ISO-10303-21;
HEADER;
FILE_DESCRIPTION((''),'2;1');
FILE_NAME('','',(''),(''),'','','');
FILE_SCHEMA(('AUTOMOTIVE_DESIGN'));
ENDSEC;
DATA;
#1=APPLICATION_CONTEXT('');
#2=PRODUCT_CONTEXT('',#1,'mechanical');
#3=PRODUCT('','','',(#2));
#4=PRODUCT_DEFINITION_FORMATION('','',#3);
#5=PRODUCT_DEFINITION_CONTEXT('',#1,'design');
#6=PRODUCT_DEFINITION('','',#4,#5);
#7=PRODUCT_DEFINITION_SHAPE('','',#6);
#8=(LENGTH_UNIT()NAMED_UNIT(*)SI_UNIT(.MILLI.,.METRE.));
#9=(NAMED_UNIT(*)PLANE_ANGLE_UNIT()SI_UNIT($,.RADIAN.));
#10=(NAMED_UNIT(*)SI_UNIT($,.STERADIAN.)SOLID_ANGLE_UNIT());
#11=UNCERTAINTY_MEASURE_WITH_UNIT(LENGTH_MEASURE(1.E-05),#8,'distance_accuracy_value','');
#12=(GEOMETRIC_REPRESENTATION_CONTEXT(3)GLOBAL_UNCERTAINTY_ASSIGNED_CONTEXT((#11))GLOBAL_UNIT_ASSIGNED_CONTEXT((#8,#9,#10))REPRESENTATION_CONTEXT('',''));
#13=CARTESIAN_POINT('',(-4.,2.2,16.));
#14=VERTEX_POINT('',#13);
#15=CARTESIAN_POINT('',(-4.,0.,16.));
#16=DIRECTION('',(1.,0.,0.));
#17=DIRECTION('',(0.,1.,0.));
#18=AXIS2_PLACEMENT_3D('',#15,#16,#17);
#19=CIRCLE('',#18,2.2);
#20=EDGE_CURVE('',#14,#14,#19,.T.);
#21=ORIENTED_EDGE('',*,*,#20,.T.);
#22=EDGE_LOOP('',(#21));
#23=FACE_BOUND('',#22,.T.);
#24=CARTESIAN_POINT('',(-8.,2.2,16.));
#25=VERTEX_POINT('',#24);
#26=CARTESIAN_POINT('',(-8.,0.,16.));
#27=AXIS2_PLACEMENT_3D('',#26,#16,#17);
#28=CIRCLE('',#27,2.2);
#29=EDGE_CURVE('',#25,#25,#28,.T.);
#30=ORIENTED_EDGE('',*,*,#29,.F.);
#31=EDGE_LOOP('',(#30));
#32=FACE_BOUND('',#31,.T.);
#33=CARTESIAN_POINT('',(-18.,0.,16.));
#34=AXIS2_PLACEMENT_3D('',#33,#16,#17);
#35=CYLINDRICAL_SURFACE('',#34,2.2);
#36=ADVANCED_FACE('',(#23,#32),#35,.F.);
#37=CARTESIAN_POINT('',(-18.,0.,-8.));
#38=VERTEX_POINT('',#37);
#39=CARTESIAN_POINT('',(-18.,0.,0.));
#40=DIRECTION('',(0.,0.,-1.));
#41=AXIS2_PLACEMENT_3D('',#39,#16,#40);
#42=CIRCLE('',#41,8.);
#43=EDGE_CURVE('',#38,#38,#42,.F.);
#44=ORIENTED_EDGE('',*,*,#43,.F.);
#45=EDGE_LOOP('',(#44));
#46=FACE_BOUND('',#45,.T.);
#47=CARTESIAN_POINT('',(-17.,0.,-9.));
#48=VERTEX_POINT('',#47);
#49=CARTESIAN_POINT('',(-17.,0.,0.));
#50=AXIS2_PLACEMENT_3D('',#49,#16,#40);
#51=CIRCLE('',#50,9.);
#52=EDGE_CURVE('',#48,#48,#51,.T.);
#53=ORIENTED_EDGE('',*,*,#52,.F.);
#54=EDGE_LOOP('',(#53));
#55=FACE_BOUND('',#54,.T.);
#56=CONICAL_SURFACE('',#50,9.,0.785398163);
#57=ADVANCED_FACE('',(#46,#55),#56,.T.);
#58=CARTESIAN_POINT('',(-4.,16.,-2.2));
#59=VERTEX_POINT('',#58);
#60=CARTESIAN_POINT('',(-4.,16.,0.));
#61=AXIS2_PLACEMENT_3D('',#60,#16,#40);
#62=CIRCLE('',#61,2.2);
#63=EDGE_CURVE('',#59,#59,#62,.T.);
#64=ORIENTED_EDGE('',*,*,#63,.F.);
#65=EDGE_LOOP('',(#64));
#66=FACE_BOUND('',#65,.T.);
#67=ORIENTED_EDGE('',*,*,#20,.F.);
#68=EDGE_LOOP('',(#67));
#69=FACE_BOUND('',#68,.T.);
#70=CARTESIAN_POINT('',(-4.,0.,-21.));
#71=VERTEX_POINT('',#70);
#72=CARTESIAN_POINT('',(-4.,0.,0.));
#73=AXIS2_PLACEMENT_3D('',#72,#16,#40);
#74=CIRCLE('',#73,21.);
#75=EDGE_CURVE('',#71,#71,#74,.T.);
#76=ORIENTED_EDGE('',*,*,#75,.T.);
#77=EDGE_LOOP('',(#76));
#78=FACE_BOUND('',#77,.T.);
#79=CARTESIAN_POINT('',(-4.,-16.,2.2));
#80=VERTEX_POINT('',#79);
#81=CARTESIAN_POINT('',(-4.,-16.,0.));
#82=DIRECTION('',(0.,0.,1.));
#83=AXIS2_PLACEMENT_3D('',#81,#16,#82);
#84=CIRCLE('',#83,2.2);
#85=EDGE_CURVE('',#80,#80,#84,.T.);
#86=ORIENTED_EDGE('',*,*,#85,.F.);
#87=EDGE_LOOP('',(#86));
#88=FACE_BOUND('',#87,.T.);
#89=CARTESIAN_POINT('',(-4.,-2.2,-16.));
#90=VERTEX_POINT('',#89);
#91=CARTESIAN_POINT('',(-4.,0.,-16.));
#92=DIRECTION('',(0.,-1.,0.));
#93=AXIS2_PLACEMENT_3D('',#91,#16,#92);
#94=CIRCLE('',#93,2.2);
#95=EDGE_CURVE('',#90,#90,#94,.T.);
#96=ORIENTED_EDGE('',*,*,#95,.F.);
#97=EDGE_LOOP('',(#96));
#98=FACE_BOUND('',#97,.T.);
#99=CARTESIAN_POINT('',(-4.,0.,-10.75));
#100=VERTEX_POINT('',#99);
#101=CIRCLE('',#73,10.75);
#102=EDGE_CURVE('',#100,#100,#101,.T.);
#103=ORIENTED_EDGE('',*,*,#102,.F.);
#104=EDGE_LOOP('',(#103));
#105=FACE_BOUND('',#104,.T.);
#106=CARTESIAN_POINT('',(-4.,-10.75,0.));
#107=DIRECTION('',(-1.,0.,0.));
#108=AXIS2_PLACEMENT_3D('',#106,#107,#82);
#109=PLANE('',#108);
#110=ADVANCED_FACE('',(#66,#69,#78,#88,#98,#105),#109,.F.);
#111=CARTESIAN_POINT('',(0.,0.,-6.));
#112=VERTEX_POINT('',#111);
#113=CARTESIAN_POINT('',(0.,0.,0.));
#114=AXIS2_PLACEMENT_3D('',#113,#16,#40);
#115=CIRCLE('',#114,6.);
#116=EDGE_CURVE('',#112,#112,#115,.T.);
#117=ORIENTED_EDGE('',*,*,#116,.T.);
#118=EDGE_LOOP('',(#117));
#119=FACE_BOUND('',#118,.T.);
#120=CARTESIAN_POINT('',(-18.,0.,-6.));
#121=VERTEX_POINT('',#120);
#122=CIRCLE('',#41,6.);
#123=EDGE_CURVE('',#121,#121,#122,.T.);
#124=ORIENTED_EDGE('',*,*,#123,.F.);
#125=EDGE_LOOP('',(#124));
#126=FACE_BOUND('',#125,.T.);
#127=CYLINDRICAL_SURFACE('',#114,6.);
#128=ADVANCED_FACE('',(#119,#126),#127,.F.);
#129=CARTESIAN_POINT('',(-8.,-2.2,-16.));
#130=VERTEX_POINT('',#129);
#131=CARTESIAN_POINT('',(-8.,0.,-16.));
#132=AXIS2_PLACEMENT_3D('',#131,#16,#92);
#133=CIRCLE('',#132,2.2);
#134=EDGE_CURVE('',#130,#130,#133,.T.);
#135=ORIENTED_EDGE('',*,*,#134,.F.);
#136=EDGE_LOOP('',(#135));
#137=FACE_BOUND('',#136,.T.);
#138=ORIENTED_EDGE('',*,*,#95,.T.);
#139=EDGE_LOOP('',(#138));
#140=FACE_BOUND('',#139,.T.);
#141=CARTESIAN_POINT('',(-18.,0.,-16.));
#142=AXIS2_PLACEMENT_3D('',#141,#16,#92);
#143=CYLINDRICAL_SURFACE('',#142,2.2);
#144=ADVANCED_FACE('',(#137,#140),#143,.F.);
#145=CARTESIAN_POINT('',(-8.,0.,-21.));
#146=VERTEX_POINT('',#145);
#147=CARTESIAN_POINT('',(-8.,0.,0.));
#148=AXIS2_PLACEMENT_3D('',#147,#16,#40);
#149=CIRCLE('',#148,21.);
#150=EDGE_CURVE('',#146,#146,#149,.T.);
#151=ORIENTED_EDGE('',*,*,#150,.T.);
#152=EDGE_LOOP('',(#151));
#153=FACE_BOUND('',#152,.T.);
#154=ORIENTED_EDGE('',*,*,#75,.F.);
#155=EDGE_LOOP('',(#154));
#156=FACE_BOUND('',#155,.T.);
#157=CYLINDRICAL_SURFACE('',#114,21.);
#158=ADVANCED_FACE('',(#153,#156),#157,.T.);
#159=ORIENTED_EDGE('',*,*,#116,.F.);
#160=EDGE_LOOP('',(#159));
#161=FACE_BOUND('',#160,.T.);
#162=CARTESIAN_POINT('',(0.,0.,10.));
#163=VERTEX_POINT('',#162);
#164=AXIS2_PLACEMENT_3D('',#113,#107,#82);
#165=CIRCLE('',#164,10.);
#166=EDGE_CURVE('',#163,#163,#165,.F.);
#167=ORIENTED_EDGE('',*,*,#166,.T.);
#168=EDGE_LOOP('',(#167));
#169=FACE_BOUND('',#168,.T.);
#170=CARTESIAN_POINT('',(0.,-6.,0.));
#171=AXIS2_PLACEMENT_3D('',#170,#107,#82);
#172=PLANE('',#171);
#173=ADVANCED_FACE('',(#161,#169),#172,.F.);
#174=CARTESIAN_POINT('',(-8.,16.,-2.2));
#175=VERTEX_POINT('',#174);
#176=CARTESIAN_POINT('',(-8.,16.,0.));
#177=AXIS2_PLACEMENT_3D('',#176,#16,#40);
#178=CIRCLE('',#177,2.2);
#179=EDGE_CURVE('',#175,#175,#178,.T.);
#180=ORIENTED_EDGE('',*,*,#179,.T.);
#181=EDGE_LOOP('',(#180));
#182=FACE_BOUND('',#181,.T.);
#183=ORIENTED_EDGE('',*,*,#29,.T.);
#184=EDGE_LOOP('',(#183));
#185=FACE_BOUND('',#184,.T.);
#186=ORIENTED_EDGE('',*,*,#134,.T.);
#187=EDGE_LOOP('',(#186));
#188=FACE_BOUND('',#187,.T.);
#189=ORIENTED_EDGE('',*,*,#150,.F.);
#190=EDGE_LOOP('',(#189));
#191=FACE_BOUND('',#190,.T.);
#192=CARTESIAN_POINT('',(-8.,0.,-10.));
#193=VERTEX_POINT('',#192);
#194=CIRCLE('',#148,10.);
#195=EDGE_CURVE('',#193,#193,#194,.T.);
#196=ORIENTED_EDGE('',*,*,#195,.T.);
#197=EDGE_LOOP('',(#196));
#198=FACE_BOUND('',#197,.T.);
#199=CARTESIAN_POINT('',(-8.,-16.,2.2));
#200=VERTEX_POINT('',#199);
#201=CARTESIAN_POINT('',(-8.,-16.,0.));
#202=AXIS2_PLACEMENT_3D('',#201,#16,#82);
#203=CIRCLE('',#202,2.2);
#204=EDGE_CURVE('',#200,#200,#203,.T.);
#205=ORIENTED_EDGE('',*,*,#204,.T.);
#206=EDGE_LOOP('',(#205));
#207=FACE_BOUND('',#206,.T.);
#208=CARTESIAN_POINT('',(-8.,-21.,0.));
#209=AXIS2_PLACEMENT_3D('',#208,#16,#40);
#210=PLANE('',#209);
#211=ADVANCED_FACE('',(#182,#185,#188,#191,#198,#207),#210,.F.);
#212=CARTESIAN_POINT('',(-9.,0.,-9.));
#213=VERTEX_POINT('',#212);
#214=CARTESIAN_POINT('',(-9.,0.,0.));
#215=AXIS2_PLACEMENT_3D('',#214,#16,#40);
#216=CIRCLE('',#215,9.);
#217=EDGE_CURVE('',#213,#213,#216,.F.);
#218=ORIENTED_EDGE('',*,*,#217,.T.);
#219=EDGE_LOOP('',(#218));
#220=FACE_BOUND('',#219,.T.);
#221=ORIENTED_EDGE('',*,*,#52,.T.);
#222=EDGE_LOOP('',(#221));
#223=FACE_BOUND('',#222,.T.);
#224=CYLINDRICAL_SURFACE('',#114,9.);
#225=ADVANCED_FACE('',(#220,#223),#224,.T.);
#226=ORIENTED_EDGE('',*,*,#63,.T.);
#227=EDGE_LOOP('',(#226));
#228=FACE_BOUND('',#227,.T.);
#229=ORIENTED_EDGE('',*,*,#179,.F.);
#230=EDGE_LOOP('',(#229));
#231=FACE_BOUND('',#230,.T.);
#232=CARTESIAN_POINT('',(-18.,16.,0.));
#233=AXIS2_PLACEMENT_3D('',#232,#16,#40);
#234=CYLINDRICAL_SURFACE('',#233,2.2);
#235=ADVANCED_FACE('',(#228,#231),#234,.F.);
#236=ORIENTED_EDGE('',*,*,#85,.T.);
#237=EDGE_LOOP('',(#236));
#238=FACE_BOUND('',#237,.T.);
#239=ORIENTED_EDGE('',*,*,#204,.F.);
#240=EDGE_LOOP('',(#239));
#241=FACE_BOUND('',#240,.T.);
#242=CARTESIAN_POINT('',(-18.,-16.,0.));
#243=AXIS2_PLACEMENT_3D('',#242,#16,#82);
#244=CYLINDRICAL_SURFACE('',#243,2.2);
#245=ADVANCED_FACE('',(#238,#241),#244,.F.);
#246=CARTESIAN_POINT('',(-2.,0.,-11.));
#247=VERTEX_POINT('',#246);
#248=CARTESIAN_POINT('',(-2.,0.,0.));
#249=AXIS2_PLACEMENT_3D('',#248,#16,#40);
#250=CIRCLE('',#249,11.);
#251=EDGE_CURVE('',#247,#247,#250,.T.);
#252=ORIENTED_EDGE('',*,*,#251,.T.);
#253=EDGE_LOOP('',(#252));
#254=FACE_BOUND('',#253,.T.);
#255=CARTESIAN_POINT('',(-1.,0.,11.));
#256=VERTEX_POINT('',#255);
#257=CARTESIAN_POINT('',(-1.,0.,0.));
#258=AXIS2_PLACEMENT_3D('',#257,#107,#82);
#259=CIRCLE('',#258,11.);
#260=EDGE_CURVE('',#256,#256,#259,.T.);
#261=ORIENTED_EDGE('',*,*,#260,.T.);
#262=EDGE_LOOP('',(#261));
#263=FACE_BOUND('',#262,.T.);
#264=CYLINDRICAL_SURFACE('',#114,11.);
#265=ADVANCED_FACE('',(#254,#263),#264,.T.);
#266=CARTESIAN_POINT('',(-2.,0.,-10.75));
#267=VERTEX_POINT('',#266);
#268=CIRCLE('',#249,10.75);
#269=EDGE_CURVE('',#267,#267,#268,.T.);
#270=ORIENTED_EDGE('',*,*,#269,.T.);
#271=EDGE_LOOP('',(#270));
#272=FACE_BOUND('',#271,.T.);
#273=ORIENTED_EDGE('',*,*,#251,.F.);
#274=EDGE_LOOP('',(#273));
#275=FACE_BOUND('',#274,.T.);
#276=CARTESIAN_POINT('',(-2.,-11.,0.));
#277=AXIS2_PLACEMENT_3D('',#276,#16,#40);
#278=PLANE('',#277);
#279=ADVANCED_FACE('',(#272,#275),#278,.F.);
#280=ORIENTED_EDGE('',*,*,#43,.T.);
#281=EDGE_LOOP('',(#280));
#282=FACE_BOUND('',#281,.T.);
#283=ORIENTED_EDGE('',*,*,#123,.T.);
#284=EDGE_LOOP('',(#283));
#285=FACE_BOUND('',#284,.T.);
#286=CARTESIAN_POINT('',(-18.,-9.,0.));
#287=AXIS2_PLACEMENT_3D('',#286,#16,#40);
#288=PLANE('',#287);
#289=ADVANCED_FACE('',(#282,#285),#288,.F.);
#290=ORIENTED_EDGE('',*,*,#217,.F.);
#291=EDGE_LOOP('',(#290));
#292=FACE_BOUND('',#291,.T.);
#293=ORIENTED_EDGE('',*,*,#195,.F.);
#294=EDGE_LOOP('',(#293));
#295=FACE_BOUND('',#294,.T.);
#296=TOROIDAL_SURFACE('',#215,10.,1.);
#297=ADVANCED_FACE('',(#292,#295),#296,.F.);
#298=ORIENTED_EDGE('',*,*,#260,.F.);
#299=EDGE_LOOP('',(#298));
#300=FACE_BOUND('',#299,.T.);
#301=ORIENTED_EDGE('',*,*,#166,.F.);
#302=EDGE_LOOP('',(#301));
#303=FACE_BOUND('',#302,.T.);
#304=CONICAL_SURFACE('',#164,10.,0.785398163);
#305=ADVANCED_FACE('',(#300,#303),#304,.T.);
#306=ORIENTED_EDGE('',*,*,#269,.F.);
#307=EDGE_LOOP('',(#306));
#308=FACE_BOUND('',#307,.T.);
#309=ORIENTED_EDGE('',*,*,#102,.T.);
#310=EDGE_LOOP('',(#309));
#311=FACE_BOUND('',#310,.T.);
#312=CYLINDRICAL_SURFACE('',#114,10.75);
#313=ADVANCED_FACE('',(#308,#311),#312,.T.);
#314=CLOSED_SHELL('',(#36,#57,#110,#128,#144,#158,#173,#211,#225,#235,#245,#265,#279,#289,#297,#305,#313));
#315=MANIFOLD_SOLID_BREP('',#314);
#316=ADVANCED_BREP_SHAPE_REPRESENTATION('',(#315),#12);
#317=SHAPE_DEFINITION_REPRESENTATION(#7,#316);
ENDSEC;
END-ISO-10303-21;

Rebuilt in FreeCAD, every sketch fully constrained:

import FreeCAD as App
import Part
import Sketcher

V = App.Vector
Q = App.Units.Quantity


def edges_at(feature, points):
    """Names of the edges that pass closest to the given points."""
    edges = feature.Shape.Edges
    near = lambda p: min(range(len(edges)), key=lambda i: edges[i].distToShape(Part.Vertex(*p))[0])
    return sorted({f"Edge{near(p) + 1}" for p in points})

doc = App.newDocument("Part")
body = doc.addObject("PartDesign::Body", "Body")

sketch1 = doc.addObject("Sketcher::SketchObject", "Sketch")
body.addObject(sketch1)
sketch1.AttachmentSupport = (doc.XY_Plane, [""])
sketch1.MapMode = "FlatFace"
sketch1.addGeometry([
    Part.LineSegment(V(0, -11, 0), V(0, -6, 0)),
    Part.LineSegment(V(0, -6, 0), V(-18, -6, 0)),
    Part.LineSegment(V(-18, -6, 0), V(-18, -9, 0)),
    Part.LineSegment(V(-18, -9, 0), V(-8, -9, 0)),
    Part.LineSegment(V(-8, -9, 0), V(-8, -21, 0)),
    Part.LineSegment(V(-8, -21, 0), V(-4, -21, 0)),
    Part.LineSegment(V(-4, -21, 0), V(-4, -10.75, 0)),
    Part.LineSegment(V(-4, -10.75, 0), V(-2, -10.75, 0)),
    Part.LineSegment(V(-2, -10.75, 0), V(-2, -11, 0)),
    Part.LineSegment(V(-2, -11, 0), V(0, -11, 0)),
], False)
sketch1.addConstraint([
    Sketcher.Constraint("Coincident", 0, 2, 1, 1),
    Sketcher.Constraint("Coincident", 1, 2, 2, 1),
    Sketcher.Constraint("Coincident", 2, 2, 3, 1),
    Sketcher.Constraint("Coincident", 3, 2, 4, 1),
    Sketcher.Constraint("Coincident", 4, 2, 5, 1),
    Sketcher.Constraint("Coincident", 5, 2, 6, 1),
    Sketcher.Constraint("Coincident", 6, 2, 7, 1),
    Sketcher.Constraint("Coincident", 7, 2, 8, 1),
    Sketcher.Constraint("Coincident", 8, 2, 9, 1),
    Sketcher.Constraint("Coincident", 9, 2, 0, 1),
    Sketcher.Constraint("Vertical", 0),
    Sketcher.Constraint("Horizontal", 1),
    Sketcher.Constraint("Vertical", 2),
    Sketcher.Constraint("Horizontal", 3),
    Sketcher.Constraint("Vertical", 4),
    Sketcher.Constraint("Horizontal", 5),
    Sketcher.Constraint("Vertical", 6),
    Sketcher.Constraint("Horizontal", 7),
    Sketcher.Constraint("Vertical", 8),
    Sketcher.Constraint("Horizontal", 9),
    Sketcher.Constraint("PointOnObject", 0, 2, -2),
    Sketcher.Constraint("Equal", 7, 9),
    Sketcher.Constraint("DistanceX", 1, 2, 1, 1, Q("18 mm")),
    Sketcher.Constraint("DistanceX", 3, 1, 3, 2, Q("10 mm")),
    Sketcher.Constraint("DistanceX", 5, 1, 5, 2, Q("4 mm")),
    Sketcher.Constraint("DistanceY", 0, 1, 0, 2, Q("5 mm")),
    Sketcher.Constraint("DistanceY", 2, 2, 2, 1, Q("3 mm")),
    Sketcher.Constraint("DistanceY", 4, 2, 4, 1, Q("12 mm")),
    Sketcher.Constraint("DistanceY", 0, 2, -1, 1, Q("6 mm")),
    Sketcher.Constraint("DistanceY", 6, 1, 6, 2, Q("10.25 mm")),
])
revolution = doc.addObject("PartDesign::Revolution", "Revolution")
body.addObject(revolution)
revolution.Profile = sketch1
revolution.ReferenceAxis = (sketch1, ["H_Axis"])
revolution.Angle = 360

sketch2 = doc.addObject("Sketcher::SketchObject", "Sketch001")
body.addObject(sketch2)
sketch2.AttachmentSupport = (doc.YZ_Plane, [""])
sketch2.MapMode = "FlatFace"
sketch2.AttachmentOffset = App.Placement(V(0, 0, -4), App.Rotation())
sketch2.addGeometry(Part.Circle(V(16, 0, 0), V(0, 0, 1), 2.2), False)
sketch2.addConstraint([
    Sketcher.Constraint("PointOnObject", 0, 3, -1),
    Sketcher.Constraint("Diameter", 0, Q("4.4 mm")),
    Sketcher.Constraint("DistanceX", -1, 1, 0, 3, Q("16 mm")),
])
pocket1 = doc.addObject("PartDesign::Pocket", "Pocket")
body.addObject(pocket1)
pocket1.Profile = sketch2
pocket1.Type = "ThroughAll"
doc.recompute()

polarpattern = doc.addObject("PartDesign::PolarPattern", "PolarPattern")
body.addObject(polarpattern)
polarpattern.Originals = [pocket1]
polarpattern.Axis = (doc.X_Axis, [""])
polarpattern.Angle = 360
polarpattern.Occurrences = 4
body.Tip = polarpattern
doc.recompute()

fillet = doc.addObject("PartDesign::Fillet", "Fillet")
body.addObject(fillet)
fillet.Base = (polarpattern, edges_at(polarpattern, [(-8, 0, 9)]))
fillet.Radius = 1
doc.recompute()

chamfer = doc.addObject("PartDesign::Chamfer", "Chamfer")
body.addObject(chamfer)
chamfer.Base = (fillet, edges_at(fillet, [(0, 0, 11), (-18, 0, 9)]))
chamfer.Size = 1

doc.recompute()
